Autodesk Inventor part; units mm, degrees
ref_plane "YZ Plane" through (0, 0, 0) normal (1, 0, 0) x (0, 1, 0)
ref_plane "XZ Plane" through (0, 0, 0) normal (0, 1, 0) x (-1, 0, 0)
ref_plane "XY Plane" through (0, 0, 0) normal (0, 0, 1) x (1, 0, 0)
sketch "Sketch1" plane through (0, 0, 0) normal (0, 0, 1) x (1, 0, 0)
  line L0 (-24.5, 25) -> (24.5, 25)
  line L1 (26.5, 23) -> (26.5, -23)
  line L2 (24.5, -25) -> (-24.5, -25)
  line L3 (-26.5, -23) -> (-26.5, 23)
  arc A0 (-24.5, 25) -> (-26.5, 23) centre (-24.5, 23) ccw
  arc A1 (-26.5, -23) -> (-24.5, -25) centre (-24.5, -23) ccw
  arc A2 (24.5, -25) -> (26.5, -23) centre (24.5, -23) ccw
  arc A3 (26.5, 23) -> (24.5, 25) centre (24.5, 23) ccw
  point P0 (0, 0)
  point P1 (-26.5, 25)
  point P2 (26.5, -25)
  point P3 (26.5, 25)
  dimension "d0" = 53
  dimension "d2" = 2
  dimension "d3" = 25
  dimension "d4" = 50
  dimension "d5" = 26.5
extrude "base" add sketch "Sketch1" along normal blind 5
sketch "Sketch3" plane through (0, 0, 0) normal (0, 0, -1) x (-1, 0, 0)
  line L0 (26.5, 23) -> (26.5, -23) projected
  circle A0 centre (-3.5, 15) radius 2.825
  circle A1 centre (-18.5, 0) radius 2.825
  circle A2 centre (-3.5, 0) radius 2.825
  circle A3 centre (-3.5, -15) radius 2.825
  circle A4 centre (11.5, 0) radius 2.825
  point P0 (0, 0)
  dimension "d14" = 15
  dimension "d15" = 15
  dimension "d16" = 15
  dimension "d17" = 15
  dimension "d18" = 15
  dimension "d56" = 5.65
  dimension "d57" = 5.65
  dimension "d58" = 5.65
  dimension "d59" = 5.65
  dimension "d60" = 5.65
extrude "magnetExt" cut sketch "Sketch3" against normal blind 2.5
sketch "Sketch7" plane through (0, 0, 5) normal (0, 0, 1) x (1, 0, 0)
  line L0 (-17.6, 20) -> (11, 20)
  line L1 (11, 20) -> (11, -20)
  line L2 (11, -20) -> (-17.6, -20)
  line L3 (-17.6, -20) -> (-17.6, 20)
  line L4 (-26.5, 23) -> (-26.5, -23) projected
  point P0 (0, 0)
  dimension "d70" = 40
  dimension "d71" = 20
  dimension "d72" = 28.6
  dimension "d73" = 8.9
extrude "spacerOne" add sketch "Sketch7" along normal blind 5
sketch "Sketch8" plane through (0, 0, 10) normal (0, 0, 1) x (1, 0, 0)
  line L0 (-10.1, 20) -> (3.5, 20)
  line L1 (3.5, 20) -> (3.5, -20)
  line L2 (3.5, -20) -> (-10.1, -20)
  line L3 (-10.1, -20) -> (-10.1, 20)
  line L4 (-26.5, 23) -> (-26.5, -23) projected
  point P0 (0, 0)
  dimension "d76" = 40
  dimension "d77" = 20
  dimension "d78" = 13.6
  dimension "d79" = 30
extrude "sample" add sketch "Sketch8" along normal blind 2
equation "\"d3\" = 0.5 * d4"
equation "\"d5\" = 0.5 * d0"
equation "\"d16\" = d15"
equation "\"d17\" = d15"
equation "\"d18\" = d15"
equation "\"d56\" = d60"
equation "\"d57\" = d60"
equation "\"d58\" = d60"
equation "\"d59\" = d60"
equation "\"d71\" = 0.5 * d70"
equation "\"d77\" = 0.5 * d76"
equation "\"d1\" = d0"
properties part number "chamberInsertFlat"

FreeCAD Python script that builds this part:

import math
import FreeCAD as App
import Part
import Sketcher

doc = App.newDocument("Part")
params = doc.addObject("Spreadsheet::Sheet", "Params")
for row, (alias, value) in enumerate([
    ("sketch1_radius", "2 mm"),
    ("pad1_length", "5 mm"),
    ("sketch2_diameter", "5.65 mm"),
    ("pocket1_length", "2.5 mm"),
    ("sketch3_height", "40 mm"),
    ("sketch3_width", "28.6 mm"),
    ("pad2_length", "5 mm"),
    ("sketch4_height", "40 mm"),
    ("sketch4_width", "13.6 mm"),
    ("pad3_length", "2 mm"),
], start=1):
    params.set(f"A{row}", alias)
    params.set(f"B{row}", "=" + value)
    params.setAlias(f"B{row}", alias)

body = doc.addObject("PartDesign::Body", "Body")

# Sketch on XY plane
sketch1 = doc.addObject("Sketcher::SketchObject", "Sketch")
body.addObject(sketch1)
sketch1.AttachmentSupport = (doc.XY_Plane, [""])
sketch1.MapMode = "FlatFace"
sketch1.addGeometry([
    Part.LineSegment(App.Vector(24.5, 25, 0), App.Vector(-24.5, 25, 0)),  # 0
    Part.ArcOfCircle(Part.Circle(App.Vector(-24.5, 23, 0), App.Vector(0, 0, 1), 2), math.radians(90), math.radians(180)),  # 1
    Part.LineSegment(App.Vector(-26.5, 23, 0), App.Vector(-26.5, -23, 0)),  # 2
    Part.ArcOfCircle(Part.Circle(App.Vector(-24.5, -23, 0), App.Vector(0, 0, 1), 2), math.radians(180), math.radians(270)),  # 3
    Part.LineSegment(App.Vector(-24.5, -25, 0), App.Vector(24.5, -25, 0)),  # 4
    Part.ArcOfCircle(Part.Circle(App.Vector(24.5, -23, 0), App.Vector(0, 0, 1), 2), math.radians(-90), math.radians(0)),  # 5
    Part.LineSegment(App.Vector(26.5, -23, 0), App.Vector(26.5, 23, 0)),  # 6
    Part.ArcOfCircle(Part.Circle(App.Vector(24.5, 23, 0), App.Vector(0, 0, 1), 2), math.radians(0), math.radians(90)),  # 7
], False)
sketch1.addConstraint([
    Sketcher.Constraint("Tangent", 0, 2, 1, 1),
    Sketcher.Constraint("Tangent", 1, 2, 2, 1),
    Sketcher.Constraint("Tangent", 2, 2, 3, 1),
    Sketcher.Constraint("Tangent", 3, 2, 4, 1),
    Sketcher.Constraint("Tangent", 4, 2, 5, 1),
    Sketcher.Constraint("Tangent", 5, 2, 6, 1),
    Sketcher.Constraint("Tangent", 6, 2, 7, 1),
    Sketcher.Constraint("Tangent", 7, 2, 0, 1),
    Sketcher.Constraint("Horizontal", 0),
    Sketcher.Constraint("Vertical", 2),
    Sketcher.Constraint("Horizontal", 4),
    Sketcher.Constraint("Vertical", 6),
    Sketcher.Constraint("Equal", 1, 3),
    Sketcher.Constraint("Equal", 3, 5),
    Sketcher.Constraint("Equal", 5, 7),
    Sketcher.Constraint("Symmetric", 1, 3, 5, 3, -1, 1),
    Sketcher.Constraint("Radius", 1, 2.0),
    Sketcher.Constraint("DistanceY", -1, 1, 0, 2, 25.0),
    Sketcher.Constraint("DistanceX", 1, 2, -1, 1, 26.5),
])
sketch1.setExpression("Constraints[16]", "Params.sketch1_radius")
pad1 = doc.addObject("PartDesign::Pad", "Pad")
body.addObject(pad1)
pad1.Profile = sketch1
pad1.setExpression("Length", "Params.pad1_length")

# Sketch on XY plane
sketch2 = doc.addObject("Sketcher::SketchObject", "Sketch001")
body.addObject(sketch2)
sketch2.AttachmentSupport = (doc.XY_Plane, [""])
sketch2.MapMode = "FlatFace"
sketch2.addGeometry([
    Part.Circle(App.Vector(3.5, 15, 0), App.Vector(0, 0, 1), 2.8),  # 0
    Part.Circle(App.Vector(18.5, 0, 0), App.Vector(0, 0, 1), 2.8),  # 1
    Part.Circle(App.Vector(3.5, 0, 0), App.Vector(0, 0, 1), 2.8),  # 2
    Part.Circle(App.Vector(3.5, -15, 0), App.Vector(0, 0, 1), 2.8),  # 3
    Part.Circle(App.Vector(-11.5, 0, 0), App.Vector(0, 0, 1), 2.8),  # 4
], False)
sketch2.addConstraint([
    Sketcher.Constraint("Equal", 0, 1),
    Sketcher.Constraint("Equal", 1, 2),
    Sketcher.Constraint("Equal", 2, 3),
    Sketcher.Constraint("Equal", 3, 4),
    Sketcher.Constraint("Symmetric", 0, 3, 3, 3, -1),
    Sketcher.Constraint("PointOnObject", 1, 3, -1),
    Sketcher.Constraint("PointOnObject", 2, 3, -1),
    Sketcher.Constraint("PointOnObject", 4, 3, -1),
    Sketcher.Constraint("Vertical", 0, 3, 2, 3),
    Sketcher.Constraint("Diameter", 0, 5.65),
    Sketcher.Constraint("DistanceY", -1, 1, 0, 3, 15.0),
    Sketcher.Constraint("DistanceX", 0, 3, 1, 3, 15.0),
    Sketcher.Constraint("DistanceX", 4, 3, 2, 3, 15.0),
    Sketcher.Constraint("DistanceX", -1, 1, 0, 3, 3.5),
])
sketch2.setExpression("Constraints[9]", "Params.sketch2_diameter")
pocket1 = doc.addObject("PartDesign::Pocket", "Pocket")
body.addObject(pocket1)
pocket1.Profile = sketch2
pocket1.setExpression("Length", "Params.pocket1_length")
pocket1.Reversed = True

# Sketch on XY plane
sketch3 = doc.addObject("Sketcher::SketchObject", "Sketch002")
body.addObject(sketch3)
sketch3.AttachmentSupport = (doc.XY_Plane, [""])
sketch3.MapMode = "FlatFace"
sketch3.AttachmentOffset = App.Placement(App.Vector(0, 0, 5), App.Rotation())
sketch3.addGeometry([
    Part.LineSegment(App.Vector(11, 20, 0), App.Vector(-18, 20, 0)),
    Part.LineSegment(App.Vector(-18, 20, 0), App.Vector(-18, -20, 0)),
    Part.LineSegment(App.Vector(-18, -20, 0), App.Vector(11, -20, 0)),
    Part.LineSegment(App.Vector(11, -20, 0), App.Vector(11, 20, 0)),
], False)
sketch3.addConstraint([
    Sketcher.Constraint("Coincident", 0, 2, 1, 1),
    Sketcher.Constraint("Coincident", 1, 2, 2, 1),
    Sketcher.Constraint("Coincident", 2, 2, 3, 1),
    Sketcher.Constraint("Coincident", 3, 2, 0, 1),
    Sketcher.Constraint("Horizontal", 0),
    Sketcher.Constraint("Vertical", 1),
    Sketcher.Constraint("Horizontal", 2),
    Sketcher.Constraint("Vertical", 3),
    Sketcher.Constraint("DistanceY", 1, 2, 1, 1, 40.0),
    Sketcher.Constraint("DistanceX", 0, 2, 0, 1, 28.6),
    Sketcher.Constraint("DistanceY", -1, 1, 0, 2, 20.0),
    Sketcher.Constraint("DistanceX", -1, 1, 2, 2, 11.0),
])
sketch3.setExpression("Constraints[8]", "Params.sketch3_height")
sketch3.setExpression("Constraints[9]", "Params.sketch3_width")
pad2 = doc.addObject("PartDesign::Pad", "Pad001")
body.addObject(pad2)
pad2.Profile = sketch3
pad2.setExpression("Length", "Params.pad2_length")

# Sketch on XY plane
sketch4 = doc.addObject("Sketcher::SketchObject", "Sketch003")
body.addObject(sketch4)
sketch4.AttachmentSupport = (doc.XY_Plane, [""])
sketch4.MapMode = "FlatFace"
sketch4.AttachmentOffset = App.Placement(App.Vector(0, 0, 10), App.Rotation())
sketch4.addGeometry([
    Part.LineSegment(App.Vector(4, 20, 0), App.Vector(-10, 20, 0)),
    Part.LineSegment(App.Vector(-10, 20, 0), App.Vector(-10, -20, 0)),
    Part.LineSegment(App.Vector(-10, -20, 0), App.Vector(4, -20, 0)),
    Part.LineSegment(App.Vector(4, -20, 0), App.Vector(4, 20, 0)),
], False)
sketch4.addConstraint([
    Sketcher.Constraint("Coincident", 0, 2, 1, 1),
    Sketcher.Constraint("Coincident", 1, 2, 2, 1),
    Sketcher.Constraint("Coincident", 2, 2, 3, 1),
    Sketcher.Constraint("Coincident", 3, 2, 0, 1),
    Sketcher.Constraint("Horizontal", 0),
    Sketcher.Constraint("Vertical", 1),
    Sketcher.Constraint("Horizontal", 2),
    Sketcher.Constraint("Vertical", 3),
    Sketcher.Constraint("DistanceY", 1, 2, 1, 1, 40.0),
    Sketcher.Constraint("DistanceX", 0, 2, 0, 1, 13.6),
    Sketcher.Constraint("DistanceY", -1, 1, 0, 2, 20.0),
    Sketcher.Constraint("DistanceX", 0, 2, -1, 1, 10.1),
])
sketch4.setExpression("Constraints[8]", "Params.sketch4_height")
sketch4.setExpression("Constraints[9]", "Params.sketch4_width")
pad3 = doc.addObject("PartDesign::Pad", "Pad002")
body.addObject(pad3)
pad3.Profile = sketch4
pad3.setExpression("Length", "Params.pad3_length")

doc.recompute()
